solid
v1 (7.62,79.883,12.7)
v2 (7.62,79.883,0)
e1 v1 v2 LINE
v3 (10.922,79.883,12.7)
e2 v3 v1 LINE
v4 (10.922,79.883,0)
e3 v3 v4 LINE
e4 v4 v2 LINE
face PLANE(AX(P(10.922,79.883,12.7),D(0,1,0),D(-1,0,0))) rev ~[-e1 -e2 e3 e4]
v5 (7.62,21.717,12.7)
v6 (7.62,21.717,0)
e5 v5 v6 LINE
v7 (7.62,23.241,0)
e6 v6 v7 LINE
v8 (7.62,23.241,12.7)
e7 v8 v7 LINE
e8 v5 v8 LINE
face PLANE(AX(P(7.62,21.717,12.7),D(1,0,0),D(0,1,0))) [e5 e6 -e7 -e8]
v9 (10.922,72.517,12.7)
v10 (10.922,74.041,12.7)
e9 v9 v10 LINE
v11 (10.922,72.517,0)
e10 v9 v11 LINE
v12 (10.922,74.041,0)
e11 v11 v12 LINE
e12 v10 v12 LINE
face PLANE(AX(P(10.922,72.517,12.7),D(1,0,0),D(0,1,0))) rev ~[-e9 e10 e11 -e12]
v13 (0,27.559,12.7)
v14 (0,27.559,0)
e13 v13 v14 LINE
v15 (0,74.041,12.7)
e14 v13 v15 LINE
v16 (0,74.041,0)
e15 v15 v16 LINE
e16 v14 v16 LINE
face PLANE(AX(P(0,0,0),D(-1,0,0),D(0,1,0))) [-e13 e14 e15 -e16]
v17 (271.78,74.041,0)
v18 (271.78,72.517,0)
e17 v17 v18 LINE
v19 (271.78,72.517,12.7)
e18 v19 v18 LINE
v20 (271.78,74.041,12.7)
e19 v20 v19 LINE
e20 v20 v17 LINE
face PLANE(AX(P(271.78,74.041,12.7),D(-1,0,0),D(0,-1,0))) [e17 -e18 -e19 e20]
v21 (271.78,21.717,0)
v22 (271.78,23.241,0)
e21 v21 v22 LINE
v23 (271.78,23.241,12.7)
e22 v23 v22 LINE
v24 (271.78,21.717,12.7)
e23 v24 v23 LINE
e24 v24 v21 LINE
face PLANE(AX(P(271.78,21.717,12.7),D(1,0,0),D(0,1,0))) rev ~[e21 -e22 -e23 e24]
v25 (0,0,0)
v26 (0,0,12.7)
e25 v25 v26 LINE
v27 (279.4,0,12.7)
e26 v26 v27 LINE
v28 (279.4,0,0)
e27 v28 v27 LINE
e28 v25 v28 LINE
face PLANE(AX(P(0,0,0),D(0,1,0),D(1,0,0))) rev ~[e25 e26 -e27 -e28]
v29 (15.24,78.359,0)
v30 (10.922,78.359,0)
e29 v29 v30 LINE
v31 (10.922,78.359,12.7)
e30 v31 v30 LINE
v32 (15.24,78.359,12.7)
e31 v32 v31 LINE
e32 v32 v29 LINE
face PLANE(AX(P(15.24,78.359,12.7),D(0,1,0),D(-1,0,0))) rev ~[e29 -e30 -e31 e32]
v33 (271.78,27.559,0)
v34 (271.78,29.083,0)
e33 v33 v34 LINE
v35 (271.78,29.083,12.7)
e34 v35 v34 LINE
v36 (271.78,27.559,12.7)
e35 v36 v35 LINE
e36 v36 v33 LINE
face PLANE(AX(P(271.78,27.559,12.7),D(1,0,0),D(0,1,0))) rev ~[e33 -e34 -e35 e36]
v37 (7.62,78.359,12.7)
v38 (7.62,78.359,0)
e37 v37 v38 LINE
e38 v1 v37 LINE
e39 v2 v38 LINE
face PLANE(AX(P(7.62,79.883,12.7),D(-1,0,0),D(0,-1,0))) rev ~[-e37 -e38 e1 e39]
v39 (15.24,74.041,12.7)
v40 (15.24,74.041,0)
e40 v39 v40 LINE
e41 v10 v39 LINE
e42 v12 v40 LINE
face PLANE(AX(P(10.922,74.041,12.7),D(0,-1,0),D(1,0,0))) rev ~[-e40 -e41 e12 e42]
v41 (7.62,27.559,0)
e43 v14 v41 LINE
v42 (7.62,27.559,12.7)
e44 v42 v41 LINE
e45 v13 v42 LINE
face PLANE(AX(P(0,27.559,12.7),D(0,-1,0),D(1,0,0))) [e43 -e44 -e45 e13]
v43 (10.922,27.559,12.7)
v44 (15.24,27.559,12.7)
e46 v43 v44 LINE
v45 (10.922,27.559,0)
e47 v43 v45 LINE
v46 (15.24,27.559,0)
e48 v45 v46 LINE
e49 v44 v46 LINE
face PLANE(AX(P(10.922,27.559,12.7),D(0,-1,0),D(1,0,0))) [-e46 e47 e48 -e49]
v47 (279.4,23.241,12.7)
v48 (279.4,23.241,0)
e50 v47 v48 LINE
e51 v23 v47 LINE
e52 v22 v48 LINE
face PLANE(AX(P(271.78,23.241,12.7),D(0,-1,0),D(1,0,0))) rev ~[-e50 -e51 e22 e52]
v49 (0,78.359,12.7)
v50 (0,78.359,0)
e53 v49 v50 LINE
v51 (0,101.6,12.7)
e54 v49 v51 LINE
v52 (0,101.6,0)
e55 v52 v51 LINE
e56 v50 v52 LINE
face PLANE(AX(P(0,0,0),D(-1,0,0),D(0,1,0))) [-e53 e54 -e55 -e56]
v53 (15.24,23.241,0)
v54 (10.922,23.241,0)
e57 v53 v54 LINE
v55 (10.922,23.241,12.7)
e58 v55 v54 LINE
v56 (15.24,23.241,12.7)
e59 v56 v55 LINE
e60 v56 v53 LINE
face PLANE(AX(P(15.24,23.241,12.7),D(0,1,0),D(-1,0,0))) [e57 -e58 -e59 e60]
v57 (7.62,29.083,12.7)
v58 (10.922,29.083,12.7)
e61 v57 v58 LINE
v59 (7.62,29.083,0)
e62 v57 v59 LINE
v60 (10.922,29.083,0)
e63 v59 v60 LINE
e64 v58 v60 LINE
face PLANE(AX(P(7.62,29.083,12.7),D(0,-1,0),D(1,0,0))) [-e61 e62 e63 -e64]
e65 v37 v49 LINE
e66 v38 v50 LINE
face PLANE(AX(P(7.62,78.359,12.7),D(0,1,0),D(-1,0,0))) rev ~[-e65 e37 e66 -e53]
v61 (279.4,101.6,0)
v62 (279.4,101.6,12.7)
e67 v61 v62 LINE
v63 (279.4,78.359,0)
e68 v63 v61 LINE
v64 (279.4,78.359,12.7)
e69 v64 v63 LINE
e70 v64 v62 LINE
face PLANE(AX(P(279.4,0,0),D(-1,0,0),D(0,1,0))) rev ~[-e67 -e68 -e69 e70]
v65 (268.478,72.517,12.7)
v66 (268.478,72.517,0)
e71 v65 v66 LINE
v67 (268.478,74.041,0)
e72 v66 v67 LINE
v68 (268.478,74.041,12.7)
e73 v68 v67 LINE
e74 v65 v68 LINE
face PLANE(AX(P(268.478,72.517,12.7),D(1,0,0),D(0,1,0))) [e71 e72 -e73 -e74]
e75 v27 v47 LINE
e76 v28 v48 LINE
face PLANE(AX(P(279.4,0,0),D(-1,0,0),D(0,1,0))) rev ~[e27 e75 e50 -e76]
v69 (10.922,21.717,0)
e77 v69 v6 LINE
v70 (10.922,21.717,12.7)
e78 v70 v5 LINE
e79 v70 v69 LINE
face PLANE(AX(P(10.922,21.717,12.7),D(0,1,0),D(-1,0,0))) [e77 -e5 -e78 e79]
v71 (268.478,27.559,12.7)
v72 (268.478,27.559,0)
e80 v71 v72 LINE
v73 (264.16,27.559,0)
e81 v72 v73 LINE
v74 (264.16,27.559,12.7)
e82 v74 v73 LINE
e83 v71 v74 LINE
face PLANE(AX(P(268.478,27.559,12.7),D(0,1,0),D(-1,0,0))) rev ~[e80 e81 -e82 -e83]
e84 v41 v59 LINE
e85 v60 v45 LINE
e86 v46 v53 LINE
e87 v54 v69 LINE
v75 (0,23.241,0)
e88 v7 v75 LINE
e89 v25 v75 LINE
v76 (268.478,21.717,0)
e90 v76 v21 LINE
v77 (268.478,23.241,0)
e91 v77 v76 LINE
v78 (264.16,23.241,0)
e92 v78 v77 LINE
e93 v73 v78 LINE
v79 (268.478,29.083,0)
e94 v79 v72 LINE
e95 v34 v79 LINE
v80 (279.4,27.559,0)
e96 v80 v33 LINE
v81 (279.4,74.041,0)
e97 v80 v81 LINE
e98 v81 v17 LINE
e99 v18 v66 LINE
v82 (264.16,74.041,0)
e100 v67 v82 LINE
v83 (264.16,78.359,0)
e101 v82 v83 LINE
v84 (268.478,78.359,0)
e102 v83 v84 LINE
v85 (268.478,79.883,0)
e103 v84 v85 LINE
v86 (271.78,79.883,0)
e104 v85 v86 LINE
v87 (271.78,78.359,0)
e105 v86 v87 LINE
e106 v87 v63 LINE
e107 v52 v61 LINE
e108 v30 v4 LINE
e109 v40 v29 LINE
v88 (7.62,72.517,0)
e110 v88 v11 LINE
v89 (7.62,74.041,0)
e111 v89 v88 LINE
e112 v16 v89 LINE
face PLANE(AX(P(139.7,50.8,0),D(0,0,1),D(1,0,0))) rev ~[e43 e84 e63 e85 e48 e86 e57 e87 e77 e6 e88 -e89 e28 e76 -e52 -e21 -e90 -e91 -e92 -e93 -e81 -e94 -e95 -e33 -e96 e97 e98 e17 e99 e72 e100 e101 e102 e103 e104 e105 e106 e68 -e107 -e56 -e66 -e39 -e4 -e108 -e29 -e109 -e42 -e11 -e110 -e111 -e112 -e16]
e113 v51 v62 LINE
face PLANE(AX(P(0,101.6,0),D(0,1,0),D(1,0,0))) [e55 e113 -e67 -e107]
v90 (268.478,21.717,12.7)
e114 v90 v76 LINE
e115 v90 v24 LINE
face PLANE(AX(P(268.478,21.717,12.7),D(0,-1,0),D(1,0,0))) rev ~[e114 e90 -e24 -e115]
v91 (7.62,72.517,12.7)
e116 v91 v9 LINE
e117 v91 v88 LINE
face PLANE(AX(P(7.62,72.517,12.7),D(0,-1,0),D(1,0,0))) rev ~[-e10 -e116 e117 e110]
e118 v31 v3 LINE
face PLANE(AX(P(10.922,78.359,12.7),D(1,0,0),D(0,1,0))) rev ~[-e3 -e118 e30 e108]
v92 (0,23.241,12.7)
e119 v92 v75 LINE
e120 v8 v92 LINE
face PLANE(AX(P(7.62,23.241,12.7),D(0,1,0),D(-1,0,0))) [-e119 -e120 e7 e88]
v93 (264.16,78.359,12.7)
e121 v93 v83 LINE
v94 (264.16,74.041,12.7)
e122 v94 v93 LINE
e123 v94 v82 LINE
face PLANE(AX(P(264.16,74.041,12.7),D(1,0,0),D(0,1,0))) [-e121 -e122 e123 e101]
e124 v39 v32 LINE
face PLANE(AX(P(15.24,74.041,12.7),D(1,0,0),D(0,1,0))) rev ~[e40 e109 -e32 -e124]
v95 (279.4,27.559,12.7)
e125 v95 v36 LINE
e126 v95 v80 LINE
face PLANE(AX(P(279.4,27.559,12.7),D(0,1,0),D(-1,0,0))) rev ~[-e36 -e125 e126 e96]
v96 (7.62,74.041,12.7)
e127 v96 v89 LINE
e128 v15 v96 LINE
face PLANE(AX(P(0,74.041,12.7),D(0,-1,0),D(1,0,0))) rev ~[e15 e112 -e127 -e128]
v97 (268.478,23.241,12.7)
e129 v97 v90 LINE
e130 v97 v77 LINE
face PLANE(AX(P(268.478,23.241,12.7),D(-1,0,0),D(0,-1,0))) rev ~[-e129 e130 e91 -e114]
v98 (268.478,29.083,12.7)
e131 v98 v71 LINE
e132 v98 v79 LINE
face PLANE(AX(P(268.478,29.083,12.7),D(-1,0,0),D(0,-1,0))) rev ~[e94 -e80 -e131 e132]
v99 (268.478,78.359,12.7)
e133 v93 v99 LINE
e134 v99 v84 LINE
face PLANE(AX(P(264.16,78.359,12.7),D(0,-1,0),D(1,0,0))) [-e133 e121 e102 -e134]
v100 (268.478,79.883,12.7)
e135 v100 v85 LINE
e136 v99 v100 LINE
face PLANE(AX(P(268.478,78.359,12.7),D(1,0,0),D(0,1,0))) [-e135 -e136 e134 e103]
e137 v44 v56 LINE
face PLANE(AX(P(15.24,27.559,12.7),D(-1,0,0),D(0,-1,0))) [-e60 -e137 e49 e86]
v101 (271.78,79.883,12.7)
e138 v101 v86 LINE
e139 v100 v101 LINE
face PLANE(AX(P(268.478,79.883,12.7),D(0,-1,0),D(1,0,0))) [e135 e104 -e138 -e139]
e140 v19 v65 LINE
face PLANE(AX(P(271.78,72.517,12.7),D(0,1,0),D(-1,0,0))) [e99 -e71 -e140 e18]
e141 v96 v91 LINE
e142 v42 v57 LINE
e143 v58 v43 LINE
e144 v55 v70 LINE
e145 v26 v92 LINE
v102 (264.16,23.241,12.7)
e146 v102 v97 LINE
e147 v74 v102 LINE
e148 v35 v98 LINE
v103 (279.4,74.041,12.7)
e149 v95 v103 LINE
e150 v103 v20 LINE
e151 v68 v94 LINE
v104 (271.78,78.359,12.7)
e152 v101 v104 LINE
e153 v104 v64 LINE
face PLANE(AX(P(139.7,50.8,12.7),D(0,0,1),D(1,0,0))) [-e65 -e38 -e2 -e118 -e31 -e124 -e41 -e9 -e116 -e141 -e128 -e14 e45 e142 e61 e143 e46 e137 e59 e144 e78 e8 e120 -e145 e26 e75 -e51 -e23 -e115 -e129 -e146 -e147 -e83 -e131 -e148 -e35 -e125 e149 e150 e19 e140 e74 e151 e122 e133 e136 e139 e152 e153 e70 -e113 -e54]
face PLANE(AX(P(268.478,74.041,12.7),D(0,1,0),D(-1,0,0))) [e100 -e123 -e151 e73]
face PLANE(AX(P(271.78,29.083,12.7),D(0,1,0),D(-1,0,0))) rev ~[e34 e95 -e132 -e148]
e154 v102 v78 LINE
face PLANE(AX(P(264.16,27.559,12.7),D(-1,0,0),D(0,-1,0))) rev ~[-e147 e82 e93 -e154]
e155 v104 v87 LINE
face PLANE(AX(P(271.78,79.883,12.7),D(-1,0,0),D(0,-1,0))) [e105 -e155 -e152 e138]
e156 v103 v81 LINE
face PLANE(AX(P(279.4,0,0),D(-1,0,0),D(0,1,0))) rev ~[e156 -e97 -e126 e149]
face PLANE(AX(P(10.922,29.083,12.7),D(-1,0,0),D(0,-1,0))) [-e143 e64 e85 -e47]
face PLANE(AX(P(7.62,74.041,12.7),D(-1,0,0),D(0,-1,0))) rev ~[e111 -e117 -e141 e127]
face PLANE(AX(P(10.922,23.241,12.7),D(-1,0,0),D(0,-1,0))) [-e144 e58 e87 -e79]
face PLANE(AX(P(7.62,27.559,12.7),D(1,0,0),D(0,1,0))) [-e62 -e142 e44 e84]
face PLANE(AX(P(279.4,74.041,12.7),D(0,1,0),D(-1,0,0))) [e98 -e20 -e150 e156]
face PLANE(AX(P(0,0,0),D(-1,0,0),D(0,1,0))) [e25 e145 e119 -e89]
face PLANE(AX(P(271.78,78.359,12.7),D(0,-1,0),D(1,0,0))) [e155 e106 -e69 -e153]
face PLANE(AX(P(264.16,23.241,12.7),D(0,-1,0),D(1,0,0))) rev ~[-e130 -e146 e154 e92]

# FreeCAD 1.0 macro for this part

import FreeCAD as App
import Part
import Sketcher

V = App.Vector
Q = App.Units.Quantity


def add_polygon(sketch, points):
    """Adds a closed chain of lines whose ends are joined by coincident constraints."""
    first, n = sketch.GeometryCount, len(points)
    for a, b in zip(points, points[1:] + points[:1]):
        sketch.addGeometry(Part.LineSegment(App.Vector(*a, 0), App.Vector(*b, 0)), False)
    for i in range(n):
        sketch.addConstraint(Sketcher.Constraint("Coincident", first + i, 2, first + (i + 1) % n, 1))

doc = App.newDocument("Part")
body = doc.addObject("PartDesign::Body", "Body")

sketch1 = body.newObject("Sketcher::SketchObject", "Sketch")
sketch1.AttachmentSupport = (doc.getObject("XY_Plane"), [""])
sketch1.MapMode = "FlatFace"
add_polygon(sketch1, [(0, 102), (0, 0), (279, 0), (279, 102)])
sketch1.addConstraint([
    Sketcher.Constraint("Vertical", 0),
    Sketcher.Constraint("Horizontal", 1),
    Sketcher.Constraint("Vertical", 2),
    Sketcher.Constraint("Horizontal", 3),
    Sketcher.Constraint("Coincident", 0, 2, -1, 1),
    Sketcher.Constraint("DistanceX", 1, 1, 1, 2, Q("11 in")),
    Sketcher.Constraint("DistanceY", 0, 2, 0, 1, Q("4 in")),
])
pad1 = body.newObject("PartDesign::Pad", "Pad")
pad1.Profile = sketch1
pad1.Length = Q("0.5 in")

sketch2 = body.newObject("Sketcher::SketchObject", "Sketch001")
sketch2.AttachmentSupport = (doc.getObject("XY_Plane"), [""])
sketch2.MapMode = "FlatFace"
sketch2.AttachmentOffset = App.Placement(V(0, 0, 0.5 * 25.4), App.Rotation())
add_polygon(sketch2, [(279.4, 74), (279.4, 78.4), (271.8, 78.4), (271.8, 79.9), (268.5, 79.9), (268.5, 78.4), (264.2, 78.4), (264.2, 74), (268.5, 74), (268.5, 72.5), (271.8, 72.5), (271.8, 74)])
add_polygon(sketch2, [(271.8, 23.2), (279.4, 23.2), (279.4, 27.6), (271.8, 27.6), (271.8, 29.1), (268.5, 29.1), (268.5, 27.6), (264.2, 27.6), (264.2, 23.2), (268.5, 23.2), (268.5, 21.7), (271.8, 21.7)])
add_polygon(sketch2, [(0, 27.6), (0, 23.2), (7.6, 23.2), (7.6, 21.7), (10.9, 21.7), (10.9, 23.2), (15.2, 23.2), (15.2, 27.6), (10.9, 27.6), (10.9, 29.1), (7.6, 29.1), (7.6, 27.6)])
add_polygon(sketch2, [(7.6, 78.4), (0, 78.4), (0, 74), (7.6, 74), (7.6, 72.5), (10.9, 72.5), (10.9, 74), (15.2, 74), (15.2, 78.4), (10.9, 78.4), (10.9, 79.9), (7.6, 79.9)])
sketch2.addConstraint([
    Sketcher.Constraint("Vertical", 0),
    Sketcher.Constraint("Horizontal", 1),
    Sketcher.Constraint("Vertical", 2),
    Sketcher.Constraint("Horizontal", 3),
    Sketcher.Constraint("Vertical", 4),
    Sketcher.Constraint("Horizontal", 5),
    Sketcher.Constraint("Vertical", 6),
    Sketcher.Constraint("Horizontal", 7),
    Sketcher.Constraint("Vertical", 8),
    Sketcher.Constraint("Horizontal", 9),
    Sketcher.Constraint("Vertical", 10),
    Sketcher.Constraint("Horizontal", 11),
    Sketcher.Constraint("Horizontal", 12),
    Sketcher.Constraint("Vertical", 13),
    Sketcher.Constraint("Horizontal", 14),
    Sketcher.Constraint("Vertical", 15),
    Sketcher.Constraint("Horizontal", 16),
    Sketcher.Constraint("Vertical", 17),
    Sketcher.Constraint("Horizontal", 18),
    Sketcher.Constraint("Vertical", 19),
    Sketcher.Constraint("Horizontal", 20),
    Sketcher.Constraint("Vertical", 21),
    Sketcher.Constraint("Horizontal", 22),
    Sketcher.Constraint("Vertical", 23),
    Sketcher.Constraint("Vertical", 24),
    Sketcher.Constraint("Horizontal", 25),
    Sketcher.Constraint("Vertical", 26),
    Sketcher.Constraint("Horizontal", 27),
    Sketcher.Constraint("Vertical", 28),
    Sketcher.Constraint("Horizontal", 29),
    Sketcher.Constraint("Vertical", 30),
    Sketcher.Constraint("Horizontal", 31),
    Sketcher.Constraint("Vertical", 32),
    Sketcher.Constraint("Horizontal", 33),
    Sketcher.Constraint("Vertical", 34),
    Sketcher.Constraint("Horizontal", 35),
    Sketcher.Constraint("Horizontal", 36),
    Sketcher.Constraint("Vertical", 37),
    Sketcher.Constraint("Horizontal", 38),
    Sketcher.Constraint("Vertical", 39),
    Sketcher.Constraint("Horizontal", 40),
    Sketcher.Constraint("Vertical", 41),
    Sketcher.Constraint("Horizontal", 42),
    Sketcher.Constraint("Vertical", 43),
    Sketcher.Constraint("Horizontal", 44),
    Sketcher.Constraint("Vertical", 45),
    Sketcher.Constraint("Horizontal", 46),
    Sketcher.Constraint("Vertical", 47),
    Sketcher.Constraint("PointOnObject", 24, 2, -2),
    Sketcher.Constraint("PointOnObject", 36, 2, -2),
    Sketcher.Constraint("Horizontal", 1, 2, 4, 2),
    Sketcher.Constraint("Horizontal", 7, 2, 10, 2),
    Sketcher.Constraint("Horizontal", 14, 2, 17, 2),
    Sketcher.Constraint("Horizontal", 12, 2, 19, 2),
    Sketcher.Constraint("Horizontal", 23, 2, 24, 2),
    Sketcher.Constraint("Horizontal", 22, 2, 26, 2),
    Sketcher.Constraint("Horizontal", 25, 2, 28, 2),
    Sketcher.Constraint("Horizontal", 18, 2, 30, 2),
    Sketcher.Constraint("Horizontal", 16, 2, 32, 2),
    Sketcher.Constraint("Horizontal", 31, 2, 34, 2),
    Sketcher.Constraint("Horizontal", 5, 2, 36, 2),
    Sketcher.Constraint("Horizontal", 11, 2, 37, 2),
    Sketcher.Constraint("Horizontal", 9, 2, 39, 2),
    Sketcher.Constraint("Horizontal", 38, 2, 41, 2),
    Sketcher.Constraint("Horizontal", 36, 2, 43, 2),
    Sketcher.Constraint("Horizontal", 3, 2, 45, 2),
    Sketcher.Constraint("Vertical", 4, 2, 7, 2),
    Sketcher.Constraint("Vertical", 2, 2, 9, 2),
    Sketcher.Constraint("Vertical", 11, 2, 12, 2),
    Sketcher.Constraint("Vertical", 10, 2, 14, 2),
    Sketcher.Constraint("Vertical", 8, 2, 16, 2),
    Sketcher.Constraint("Vertical", 6, 2, 18, 2),
    Sketcher.Constraint("Vertical", 17, 2, 20, 2),
    Sketcher.Constraint("Vertical", 15, 2, 22, 2),
    Sketcher.Constraint("Vertical", 28, 2, 31, 2),
    Sketcher.Constraint("Vertical", 26, 2, 33, 2),
    Sketcher.Constraint("Vertical", 34, 2, 38, 2),
    Sketcher.Constraint("Vertical", 32, 2, 40, 2),
    Sketcher.Constraint("Vertical", 30, 2, 42, 2),
    Sketcher.Constraint("Vertical", 41, 2, 44, 2),
    Sketcher.Constraint("Vertical", 39, 2, 46, 2),
    Sketcher.Constraint("Equal", 14, 25),
    Sketcher.Constraint("Equal", 22, 27),
    Sketcher.Constraint("Equal", 20, 29),
    Sketcher.Constraint("Equal", 44, 0),
    Sketcher.Constraint("Equal", 4, 8),
    Sketcher.Constraint("Equal", 6, 13),
    Sketcher.Constraint("Equal", 10, 15),
    Sketcher.Constraint("Equal", 17, 21),
    Sketcher.Constraint("DistanceX", 1, 2, 1, 1, Q("0.3 in")),
    Sketcher.Constraint("DistanceX", -1, 1, 0, 2, Q("11 in")),
    Sketcher.Constraint("DistanceY", 12, 2, 11, 2, Q("2 in")),
    Sketcher.Constraint("DistanceX", 3, 2, 3, 1, Q("0.13 in")),
    Sketcher.Constraint("DistanceX", 5, 2, 5, 1, Q("0.17 in")),
    Sketcher.Constraint("DistanceY", 2, 1, 2, 2, Q("0.06 in")),
    Sketcher.Constraint("DistanceY", -1, 1, 0, 2, Q("3.085 in")),
])
pocket1 = body.newObject("PartDesign::Pocket", "Pocket")
pocket1.Profile = sketch2
pocket1.Type = "ThroughAll"

doc.recompute()
